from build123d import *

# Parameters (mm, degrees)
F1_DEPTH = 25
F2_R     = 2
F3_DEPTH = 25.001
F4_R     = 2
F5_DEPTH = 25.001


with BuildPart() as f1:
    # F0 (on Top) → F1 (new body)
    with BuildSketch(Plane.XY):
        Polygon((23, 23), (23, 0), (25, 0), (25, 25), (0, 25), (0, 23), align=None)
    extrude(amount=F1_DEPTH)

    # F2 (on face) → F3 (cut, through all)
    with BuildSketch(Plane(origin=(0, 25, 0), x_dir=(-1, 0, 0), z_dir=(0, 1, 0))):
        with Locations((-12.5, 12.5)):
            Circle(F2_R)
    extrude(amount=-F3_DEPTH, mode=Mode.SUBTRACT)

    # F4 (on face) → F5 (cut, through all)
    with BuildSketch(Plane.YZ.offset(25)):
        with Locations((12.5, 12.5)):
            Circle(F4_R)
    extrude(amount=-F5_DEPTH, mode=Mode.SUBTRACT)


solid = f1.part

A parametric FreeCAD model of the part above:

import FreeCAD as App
import Part
import Sketcher
from FreeCAD import Vector
Q = App.Units.Quantity

doc = App.newDocument("Part")
body = doc.addObject("PartDesign::Body", "Body")

# Sketch on XY plane
sketch1 = body.newObject("Sketcher::SketchObject", "Sketch")
sketch1.AttachmentSupport = (doc.getObject("XY_Plane"), [""])
sketch1.MapMode = "FlatFace"
sketch1.addGeometry([
    Part.LineSegment(Vector(23, 23, 0), Vector(23, 0, 0)),  # 0
    Part.LineSegment(Vector(23, 0, 0), Vector(25, 0, 0)),  # 1
    Part.LineSegment(Vector(25, 0, 0), Vector(25, 25, 0)),  # 2
    Part.LineSegment(Vector(25, 25, 0), Vector(0, 25, 0)),  # 3
    Part.LineSegment(Vector(0, 25, 0), Vector(0, 23, 0)),  # 4
    Part.LineSegment(Vector(0, 23, 0), Vector(23, 23, 0)),  # 5
], False)
sketch1.addConstraint([
    Sketcher.Constraint("Coincident", 0, 2, 1, 1),
    Sketcher.Constraint("Coincident", 1, 2, 2, 1),
    Sketcher.Constraint("Coincident", 2, 2, 3, 1),
    Sketcher.Constraint("Coincident", 3, 2, 4, 1),
    Sketcher.Constraint("Coincident", 4, 2, 5, 1),
    Sketcher.Constraint("Coincident", 5, 2, 0, 1),
    Sketcher.Constraint("Vertical", 0),
    Sketcher.Constraint("Horizontal", 1),
    Sketcher.Constraint("Vertical", 2),
    Sketcher.Constraint("Horizontal", 3),
    Sketcher.Constraint("Vertical", 4),
    Sketcher.Constraint("Horizontal", 5),
    Sketcher.Constraint("PointOnObject", 0, 2, -1),
    Sketcher.Constraint("PointOnObject", 3, 2, -2),
    Sketcher.Constraint("Equal", 5, 0),
    Sketcher.Constraint("Equal", 3, 2),
    Sketcher.Constraint("DistanceX", 1, 1, 1, 2, Q("2 mm")),
    Sketcher.Constraint("DistanceX", 3, 2, 3, 1, Q("25 mm")),
])
pad1 = body.newObject("PartDesign::Pad", "Pad")
pad1.Profile = sketch1
pad1.Length = 25

# Sketch on XZ plane
sketch2 = body.newObject("Sketcher::SketchObject", "Sketch001")
sketch2.AttachmentSupport = (doc.getObject("XZ_Plane"), [""])
sketch2.MapMode = "FlatFace"
sketch2.AttachmentOffset = App.Placement(Vector(0, 0, -25), App.Rotation())
sketch2.addGeometry(Part.Circle(Vector(12.5, 12.5, 0), Vector(0, 0, 1), 2), False)
sketch2.addConstraint([
    Sketcher.Constraint("Diameter", 0, Q("4 mm")),
    Sketcher.Constraint("DistanceX", -1, 1, 0, 3, Q("12.5 mm")),
    Sketcher.Constraint("DistanceY", -1, 1, 0, 3, Q("12.5 mm")),
])
pocket1 = body.newObject("PartDesign::Pocket", "Pocket")
pocket1.Profile = sketch2
pocket1.Type = "ThroughAll"
pocket1.Reversed = True

# Sketch on YZ plane
sketch3 = body.newObject("Sketcher::SketchObject", "Sketch002")
sketch3.AttachmentSupport = (doc.getObject("YZ_Plane"), [""])
sketch3.MapMode = "FlatFace"
sketch3.AttachmentOffset = App.Placement(Vector(0, 0, 25), App.Rotation())
sketch3.addGeometry(Part.Circle(Vector(12.5, 12.5, 0), Vector(0, 0, 1), 2), False)
sketch3.addConstraint([
    Sketcher.Constraint("Diameter", 0, Q("4 mm")),
    Sketcher.Constraint("DistanceX", -1, 1, 0, 3, Q("12.5 mm")),
    Sketcher.Constraint("DistanceY", -1, 1, 0, 3, Q("12.5 mm")),
])
pocket2 = body.newObject("PartDesign::Pocket", "Pocket001")
pocket2.Profile = sketch3
pocket2.Type = "ThroughAll"

doc.recompute()
